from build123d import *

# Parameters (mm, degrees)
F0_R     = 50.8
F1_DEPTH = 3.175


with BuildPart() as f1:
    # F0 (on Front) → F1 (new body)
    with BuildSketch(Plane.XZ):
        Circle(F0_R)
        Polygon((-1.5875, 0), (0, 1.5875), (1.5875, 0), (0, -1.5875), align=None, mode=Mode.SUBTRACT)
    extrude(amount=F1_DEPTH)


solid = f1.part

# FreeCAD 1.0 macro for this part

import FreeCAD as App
import Part
import Sketcher
from FreeCAD import Vector
Q = App.Units.Quantity

doc = App.newDocument("Part")
body = doc.addObject("PartDesign::Body", "Body")

# Sketch on XZ plane
sketch1 = body.newObject("Sketcher::SketchObject", "Sketch")
sketch1.AttachmentSupport = (doc.getObject("XZ_Plane"), [""])
sketch1.MapMode = "FlatFace"
sketch1.addGeometry([
    Part.Circle(Vector(0, 0, 0), Vector(0, 0, 1), 50.8),  # 0
    Part.LineSegment(Vector(0, -1.5875, 0), Vector(-1.5875, 0, 0)),  # 1
    Part.LineSegment(Vector(-1.5875, 0, 0), Vector(0, 1.5875, 0)),  # 2
    Part.LineSegment(Vector(0, 1.5875, 0), Vector(1.5875, 0, 0)),  # 3
    Part.LineSegment(Vector(1.5875, 0, 0), Vector(0, -1.5875, 0)),  # 4
], False)
sketch1.addConstraint([
    Sketcher.Constraint("Coincident", 1, 2, 2, 1),
    Sketcher.Constraint("Coincident", 2, 2, 3, 1),
    Sketcher.Constraint("Coincident", 3, 2, 4, 1),
    Sketcher.Constraint("Coincident", 4, 2, 1, 1),
    Sketcher.Constraint("Coincident", 0, 3, -1, 1),
    Sketcher.Constraint("Symmetric", 1, 2, 3, 2, -1, 1),
    Sketcher.Constraint("Symmetric", 2, 2, 4, 2, -1, 1),
    Sketcher.Constraint("PointOnObject", 1, 2, -1),
    Sketcher.Constraint("PointOnObject", 2, 2, -2),
    Sketcher.Constraint("Perpendicular", 1, 2),
    Sketcher.Constraint("Diameter", 0, Q("4 in")),
    Sketcher.Constraint("DistanceX", 1, 2, -1, 1, Q("0.0625 in")),
])
pad1 = body.newObject("PartDesign::Pad", "Pad")
pad1.Profile = sketch1
pad1.Length = Q("0.125 in")

doc.recompute()
